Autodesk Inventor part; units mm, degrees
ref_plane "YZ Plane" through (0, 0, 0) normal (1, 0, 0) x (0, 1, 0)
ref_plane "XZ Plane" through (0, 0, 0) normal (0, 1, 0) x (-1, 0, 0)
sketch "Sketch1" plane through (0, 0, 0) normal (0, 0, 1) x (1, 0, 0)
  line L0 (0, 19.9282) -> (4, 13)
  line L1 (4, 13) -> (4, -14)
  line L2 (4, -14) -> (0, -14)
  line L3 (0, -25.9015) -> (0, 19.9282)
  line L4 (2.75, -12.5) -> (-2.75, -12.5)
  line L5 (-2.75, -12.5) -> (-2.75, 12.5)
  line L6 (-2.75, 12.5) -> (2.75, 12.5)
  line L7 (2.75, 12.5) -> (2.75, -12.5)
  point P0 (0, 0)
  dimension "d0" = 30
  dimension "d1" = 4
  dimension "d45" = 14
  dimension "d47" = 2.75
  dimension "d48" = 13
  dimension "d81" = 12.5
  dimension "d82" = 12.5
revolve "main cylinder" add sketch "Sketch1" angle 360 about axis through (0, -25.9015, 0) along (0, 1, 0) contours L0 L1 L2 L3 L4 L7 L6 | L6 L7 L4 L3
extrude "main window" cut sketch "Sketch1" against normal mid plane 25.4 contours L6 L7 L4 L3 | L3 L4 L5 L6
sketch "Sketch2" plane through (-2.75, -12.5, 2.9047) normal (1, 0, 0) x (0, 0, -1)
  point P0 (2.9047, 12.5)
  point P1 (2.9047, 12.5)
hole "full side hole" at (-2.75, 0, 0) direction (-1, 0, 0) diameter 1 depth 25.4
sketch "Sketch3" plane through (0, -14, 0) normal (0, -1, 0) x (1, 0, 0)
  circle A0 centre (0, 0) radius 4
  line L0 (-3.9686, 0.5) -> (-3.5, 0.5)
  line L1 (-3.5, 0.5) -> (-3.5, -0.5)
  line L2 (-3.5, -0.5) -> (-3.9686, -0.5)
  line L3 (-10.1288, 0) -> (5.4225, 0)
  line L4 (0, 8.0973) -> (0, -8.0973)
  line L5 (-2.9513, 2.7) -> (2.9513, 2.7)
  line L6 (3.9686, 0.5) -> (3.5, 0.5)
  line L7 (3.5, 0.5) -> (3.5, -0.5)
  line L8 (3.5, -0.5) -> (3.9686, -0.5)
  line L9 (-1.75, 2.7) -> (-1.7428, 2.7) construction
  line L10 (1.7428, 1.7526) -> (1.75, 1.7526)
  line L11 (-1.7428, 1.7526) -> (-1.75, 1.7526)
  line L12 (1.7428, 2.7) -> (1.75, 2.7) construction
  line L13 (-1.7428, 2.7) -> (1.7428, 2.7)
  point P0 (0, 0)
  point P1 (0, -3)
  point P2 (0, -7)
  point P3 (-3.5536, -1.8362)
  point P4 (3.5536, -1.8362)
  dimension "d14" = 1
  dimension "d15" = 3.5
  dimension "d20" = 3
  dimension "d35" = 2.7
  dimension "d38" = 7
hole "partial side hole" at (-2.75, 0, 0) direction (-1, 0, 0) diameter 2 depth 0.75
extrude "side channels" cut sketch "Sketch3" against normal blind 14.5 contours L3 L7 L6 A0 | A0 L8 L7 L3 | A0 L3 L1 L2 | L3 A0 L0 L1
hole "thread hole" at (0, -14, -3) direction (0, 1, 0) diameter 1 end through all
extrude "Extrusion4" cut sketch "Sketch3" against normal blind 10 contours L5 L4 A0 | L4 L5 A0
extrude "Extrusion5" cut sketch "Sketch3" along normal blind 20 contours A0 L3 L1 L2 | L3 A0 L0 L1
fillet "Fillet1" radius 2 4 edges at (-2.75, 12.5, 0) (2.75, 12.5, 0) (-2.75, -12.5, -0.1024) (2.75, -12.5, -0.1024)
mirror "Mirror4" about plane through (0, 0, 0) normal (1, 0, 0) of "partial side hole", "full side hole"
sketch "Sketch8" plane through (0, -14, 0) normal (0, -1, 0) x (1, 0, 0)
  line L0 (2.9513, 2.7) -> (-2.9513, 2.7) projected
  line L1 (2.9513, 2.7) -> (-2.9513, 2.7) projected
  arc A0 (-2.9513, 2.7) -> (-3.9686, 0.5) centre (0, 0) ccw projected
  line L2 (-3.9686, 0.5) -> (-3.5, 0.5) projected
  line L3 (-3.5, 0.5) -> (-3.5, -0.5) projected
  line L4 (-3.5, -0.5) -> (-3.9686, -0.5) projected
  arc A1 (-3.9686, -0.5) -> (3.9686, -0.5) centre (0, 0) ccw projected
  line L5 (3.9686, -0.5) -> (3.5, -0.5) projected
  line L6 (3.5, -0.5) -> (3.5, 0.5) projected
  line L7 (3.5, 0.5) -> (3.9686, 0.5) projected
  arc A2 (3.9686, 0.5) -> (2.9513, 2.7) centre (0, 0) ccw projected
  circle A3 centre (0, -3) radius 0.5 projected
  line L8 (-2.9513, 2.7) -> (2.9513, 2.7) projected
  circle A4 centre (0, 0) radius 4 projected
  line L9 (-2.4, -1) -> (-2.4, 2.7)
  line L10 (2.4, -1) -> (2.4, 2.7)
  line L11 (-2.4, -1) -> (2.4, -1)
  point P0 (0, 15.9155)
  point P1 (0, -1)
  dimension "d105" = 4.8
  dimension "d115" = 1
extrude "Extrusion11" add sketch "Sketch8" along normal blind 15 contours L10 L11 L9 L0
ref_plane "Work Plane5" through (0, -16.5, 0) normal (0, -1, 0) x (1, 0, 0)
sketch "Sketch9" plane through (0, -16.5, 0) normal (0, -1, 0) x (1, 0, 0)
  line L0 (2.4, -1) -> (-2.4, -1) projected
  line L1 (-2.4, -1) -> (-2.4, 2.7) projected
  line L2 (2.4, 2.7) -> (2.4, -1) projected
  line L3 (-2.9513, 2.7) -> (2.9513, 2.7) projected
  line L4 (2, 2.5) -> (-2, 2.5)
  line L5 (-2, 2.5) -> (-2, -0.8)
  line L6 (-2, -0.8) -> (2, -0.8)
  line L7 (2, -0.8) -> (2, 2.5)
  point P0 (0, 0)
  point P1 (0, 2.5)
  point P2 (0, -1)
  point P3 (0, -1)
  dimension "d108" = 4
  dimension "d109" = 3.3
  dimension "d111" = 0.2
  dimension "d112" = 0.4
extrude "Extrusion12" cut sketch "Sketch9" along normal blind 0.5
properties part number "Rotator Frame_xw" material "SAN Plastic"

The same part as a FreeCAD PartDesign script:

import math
import FreeCAD as App
import Part
import Sketcher
from FreeCAD import Vector
Q = App.Units.Quantity


def edges_at(feature, points):
    """Names of the edges that pass closest to the given points."""
    edges = feature.Shape.Edges
    near = lambda p: min(range(len(edges)), key=lambda i: edges[i].distToShape(Part.Vertex(*p))[0])
    return sorted({f"Edge{near(p) + 1}" for p in points})

doc = App.newDocument("Part")
body = doc.addObject("PartDesign::Body", "Body")

sketch1 = body.newObject("Sketcher::SketchObject", "Sketch")
sketch1.AttachmentSupport = (doc.getObject("XY_Plane"), [""])
sketch1.MapMode = "FlatFace"
sketch1.addGeometry([
    Part.LineSegment(Vector(4, 13, 0), Vector(0, 19.9282, 0)),
    Part.LineSegment(Vector(0, 19.9282, 0), Vector(0, -14, 0)),
    Part.LineSegment(Vector(0, -14, 0), Vector(4, -14, 0)),
    Part.LineSegment(Vector(4, -14, 0), Vector(4, 13, 0)),
], False)
sketch1.addConstraint([
    Sketcher.Constraint("Coincident", 0, 2, 1, 1),
    Sketcher.Constraint("Coincident", 1, 2, 2, 1),
    Sketcher.Constraint("Coincident", 2, 2, 3, 1),
    Sketcher.Constraint("Coincident", 3, 2, 0, 1),
    Sketcher.Constraint("Vertical", 1),
    Sketcher.Constraint("Horizontal", 2),
    Sketcher.Constraint("Vertical", 3),
    Sketcher.Constraint("PointOnObject", 0, 2, -2),
    Sketcher.Constraint("DistanceX", 2, 1, 2, 2, Q("4 mm")),
    Sketcher.Constraint("DistanceY", 1, 2, -1, 1, Q("14 mm")),
    Sketcher.Constraint("DistanceY", -1, 1, 3, 2, Q("13 mm")),
    Sketcher.Constraint("Angle", 0, Q("120 deg")),
])
revolution = body.newObject("PartDesign::Revolution", "Revolution")
revolution.Profile = sketch1
revolution.ReferenceAxis = (sketch1, ["V_Axis"])
revolution.Angle = 360

sketch2 = body.newObject("Sketcher::SketchObject", "Sketch001")
sketch2.AttachmentSupport = (doc.getObject("XY_Plane"), [""])
sketch2.MapMode = "FlatFace"
sketch2.addGeometry([
    Part.LineSegment(Vector(2.75, 12.5, 0), Vector(-2.75, 12.5, 0)),
    Part.LineSegment(Vector(-2.75, 12.5, 0), Vector(-2.75, -12.5, 0)),
    Part.LineSegment(Vector(-2.75, -12.5, 0), Vector(2.75, -12.5, 0)),
    Part.LineSegment(Vector(2.75, -12.5, 0), Vector(2.75, 12.5, 0)),
], False)
sketch2.addConstraint([
    Sketcher.Constraint("Coincident", 0, 2, 1, 1),
    Sketcher.Constraint("Coincident", 1, 2, 2, 1),
    Sketcher.Constraint("Coincident", 2, 2, 3, 1),
    Sketcher.Constraint("Coincident", 3, 2, 0, 1),
    Sketcher.Constraint("Horizontal", 0),
    Sketcher.Constraint("Vertical", 1),
    Sketcher.Constraint("Horizontal", 2),
    Sketcher.Constraint("Vertical", 3),
    Sketcher.Constraint("Symmetric", 0, 2, 2, 2, -1, 1),
    Sketcher.Constraint("DistanceY", -1, 1, 0, 2, Q("12.5 mm")),
    Sketcher.Constraint("DistanceX", 0, 2, -1, 1, Q("2.75 mm")),
])
pocket1 = body.newObject("PartDesign::Pocket", "Pocket")
pocket1.Profile = sketch2
pocket1.Length = 25.4
pocket1.Midplane = True

sketch3 = body.newObject("Sketcher::SketchObject", "Sketch002")
sketch3.AttachmentSupport = (doc.getObject("YZ_Plane"), [""])
sketch3.MapMode = "FlatFace"
sketch3.AttachmentOffset = App.Placement(Vector(0, 0, -2.75), App.Rotation())
sketch3.addGeometry(Part.Circle(Vector(0, 0, 0), Vector(0, 0, 1), 0.5), False)
sketch3.addConstraint([
    Sketcher.Constraint("Coincident", 0, 3, -1, 1),
    Sketcher.Constraint("Diameter", 0, Q("1 mm")),
])
doc.recompute()
hole = body.newObject("PartDesign::Hole", "Hole")
hole.Profile = sketch3
hole.ThreadType = "None"
hole.Diameter = 1
hole.DepthType = "Dimension"
hole.Depth = 25.4
hole.DrillPoint = "Flat"

sketch4 = body.newObject("Sketcher::SketchObject", "Sketch003")
sketch4.AttachmentSupport = (doc.getObject("YZ_Plane"), [""])
sketch4.MapMode = "FlatFace"
sketch4.AttachmentOffset = App.Placement(Vector(0, 0, -2.75), App.Rotation())
sketch4.addGeometry(Part.Circle(Vector(0, 0, 0), Vector(0, 0, 1), 1), False)
sketch4.addConstraint([
    Sketcher.Constraint("Coincident", 0, 3, -1, 1),
    Sketcher.Constraint("Diameter", 0, Q("2 mm")),
])
doc.recompute()
hole2 = body.newObject("PartDesign::Hole", "Hole001")
hole2.Profile = sketch4
hole2.ThreadType = "None"
hole2.Diameter = 2
hole2.DepthType = "Dimension"
hole2.Depth = 0.75
hole2.DrillPoint = "Flat"

sketch5 = body.newObject("Sketcher::SketchObject", "Sketch004")
sketch5.AttachmentSupport = (doc.getObject("XZ_Plane"), [""])
sketch5.MapMode = "FlatFace"
sketch5.AttachmentOffset = App.Placement(Vector(0, 0, 14), App.Rotation())
sketch5.addGeometry([
    Part.LineSegment(Vector(3.5, 0.5, 0), Vector(3.5, -0.5, 0)),
    Part.LineSegment(Vector(3.5, -0.5, 0), Vector(3.9686, -0.5, 0)),
    Part.ArcOfCircle(Part.Circle(Vector(0, 0, 0), Vector(0, 0, 1), 4), math.radians(-7.180804), math.radians(7.180804)),
    Part.LineSegment(Vector(3.9686, 0.5, 0), Vector(3.5, 0.5, 0)),
    Part.LineSegment(Vector(-3.9686, -0.5, 0), Vector(-3.5, -0.5, 0)),
    Part.LineSegment(Vector(-3.5, -0.5, 0), Vector(-3.5, 0.5, 0)),
    Part.LineSegment(Vector(-3.5, 0.5, 0), Vector(-3.9686, 0.5, 0)),
    Part.ArcOfCircle(Part.Circle(Vector(0, 0, 0), Vector(0, 0, 1), 4), math.radians(172.819196), math.radians(187.180804)),
], False)
sketch5.addConstraint([
    Sketcher.Constraint("Coincident", 0, 2, 1, 1),
    Sketcher.Constraint("Coincident", 1, 2, 2, 1),
    Sketcher.Constraint("Coincident", 2, 2, 3, 1),
    Sketcher.Constraint("Coincident", 3, 2, 0, 1),
    Sketcher.Constraint("Coincident", 4, 2, 5, 1),
    Sketcher.Constraint("Coincident", 5, 2, 6, 1),
    Sketcher.Constraint("Coincident", 6, 2, 7, 1),
    Sketcher.Constraint("Coincident", 7, 2, 4, 1),
    Sketcher.Constraint("Vertical", 0),
    Sketcher.Constraint("Horizontal", 1),
    Sketcher.Constraint("Horizontal", 3),
    Sketcher.Constraint("Horizontal", 4),
    Sketcher.Constraint("Vertical", 5),
    Sketcher.Constraint("Horizontal", 6),
    Sketcher.Constraint("Coincident", 2, 3, -1, 1),
    Sketcher.Constraint("Coincident", 7, 3, -1, 1),
    Sketcher.Constraint("Equal", 2, 7),
    Sketcher.Constraint("Symmetric", 3, 2, 4, 2, -1, 1),
    Sketcher.Constraint("Horizontal", 1, 2, 4, 2),
    Sketcher.Constraint("Horizontal", 3, 2, 5, 2),
    Sketcher.Constraint("DistanceY", 0, 2, 0, 1, Q("1 mm")),
    Sketcher.Constraint("Radius", 2, Q("4 mm")),
    Sketcher.Constraint("DistanceX", 4, 2, 0, 2, Q("7 mm")),
])
pocket2 = body.newObject("PartDesign::Pocket", "Pocket001")
pocket2.Profile = sketch5
pocket2.Length = 14.5

sketch6 = body.newObject("Sketcher::SketchObject", "Sketch005")
sketch6.AttachmentSupport = (doc.getObject("XZ_Plane"), [""])
sketch6.MapMode = "FlatFace"
sketch6.AttachmentOffset = App.Placement(Vector(0, 0, 14), App.Rotation())
sketch6.addGeometry(Part.Circle(Vector(0, -3, 0), Vector(0, 0, 1), 0.5), False)
sketch6.addConstraint([
    Sketcher.Constraint("PointOnObject", 0, 3, -2),
    Sketcher.Constraint("Diameter", 0, Q("1 mm")),
    Sketcher.Constraint("DistanceY", 0, 3, -1, 1, Q("3 mm")),
])
doc.recompute()
hole3 = body.newObject("PartDesign::Hole", "Hole002")
hole3.Profile = sketch6
hole3.ThreadType = "None"
hole3.Diameter = 1
hole3.DepthType = "ThroughAll"

sketch7 = body.newObject("Sketcher::SketchObject", "Sketch006")
sketch7.AttachmentSupport = (doc.getObject("XZ_Plane"), [""])
sketch7.MapMode = "FlatFace"
sketch7.AttachmentOffset = App.Placement(Vector(0, 0, 14), App.Rotation())
sketch7.addGeometry([
    Part.ArcOfCircle(Part.Circle(Vector(0, 0, 0), Vector(0, 0, 1), 4), math.radians(42.453869), math.radians(137.546131)),
    Part.LineSegment(Vector(2.9513, 2.7, 0), Vector(-2.9513, 2.7, 0)),
], False)
sketch7.addConstraint([
    Sketcher.Constraint("Coincident", 0, 1, 1, 1),
    Sketcher.Constraint("Coincident", 1, 2, 0, 2),
    Sketcher.Constraint("Horizontal", 1),
    Sketcher.Constraint("Coincident", 0, 3, -1, 1),
    Sketcher.Constraint("Radius", 0, Q("4 mm")),
    Sketcher.Constraint("DistanceY", -1, 1, 0, 1, Q("2.7 mm")),
])
pocket3 = body.newObject("PartDesign::Pocket", "Pocket002")
pocket3.Profile = sketch7
pocket3.Length = 10

sketch8 = body.newObject("Sketcher::SketchObject", "Sketch007")
sketch8.AttachmentSupport = (doc.getObject("XZ_Plane"), [""])
sketch8.MapMode = "FlatFace"
sketch8.AttachmentOffset = App.Placement(Vector(0, 0, 14), App.Rotation())
sketch8.addGeometry([
    Part.LineSegment(Vector(-3.9686, -0.5, 0), Vector(-3.5, -0.5, 0)),
    Part.LineSegment(Vector(-3.5, -0.5, 0), Vector(-3.5, 0.5, 0)),
    Part.LineSegment(Vector(-3.5, 0.5, 0), Vector(-3.9686, 0.5, 0)),
    Part.ArcOfCircle(Part.Circle(Vector(0, 0, 0), Vector(0, 0, 1), 4), math.radians(172.819196), math.radians(187.180804)),
], False)
sketch8.addConstraint([
    Sketcher.Constraint("Coincident", 0, 2, 1, 1),
    Sketcher.Constraint("Coincident", 1, 2, 2, 1),
    Sketcher.Constraint("Coincident", 2, 2, 3, 1),
    Sketcher.Constraint("Coincident", 3, 2, 0, 1),
    Sketcher.Constraint("Horizontal", 0),
    Sketcher.Constraint("Vertical", 1),
    Sketcher.Constraint("Horizontal", 2),
    Sketcher.Constraint("Coincident", 3, 3, -1, 1),
    Sketcher.Constraint("Vertical", 2, 2, 3, 2),
    Sketcher.Constraint("DistanceY", 1, 1, 1, 2, Q("1 mm")),
    Sketcher.Constraint("Radius", 3, Q("4 mm")),
    Sketcher.Constraint("DistanceX", 0, 2, -1, 1, Q("3.5 mm")),
])
pocket4 = body.newObject("PartDesign::Pocket", "Pocket003")
pocket4.Profile = sketch8
pocket4.Length = 20
pocket4.Reversed = True
doc.recompute()

fillet = body.newObject("PartDesign::Fillet", "Fillet")
fillet.Base = (pocket4, edges_at(pocket4, [
    (-2.75, 12.5, 0),
    (2.75, 12.5, 0),
    (-2.75, -12.5, -0.102),
    (2.75, -12.5, -0.102),
]))
fillet.Radius = 2
doc.recompute()

mirrored = body.newObject("PartDesign::Mirrored", "Mirrored")
mirrored.Originals = [hole2, hole]
mirrored.MirrorPlane = (doc.getObject("YZ_Plane"), [""])
body.Tip = mirrored

sketch9 = body.newObject("Sketcher::SketchObject", "Sketch008")
sketch9.AttachmentSupport = (doc.getObject("XZ_Plane"), [""])
sketch9.MapMode = "FlatFace"
sketch9.AttachmentOffset = App.Placement(Vector(0, 0, 14), App.Rotation())
sketch9.addGeometry([
    Part.LineSegment(Vector(2.4, -1, 0), Vector(2.4, 2.7, 0)),
    Part.LineSegment(Vector(2.4, 2.7, 0), Vector(-2.4, 2.7, 0)),
    Part.LineSegment(Vector(-2.4, 2.7, 0), Vector(-2.4, -1, 0)),
    Part.LineSegment(Vector(-2.4, -1, 0), Vector(2.4, -1, 0)),
], False)
sketch9.addConstraint([
    Sketcher.Constraint("Coincident", 0, 2, 1, 1),
    Sketcher.Constraint("Coincident", 1, 2, 2, 1),
    Sketcher.Constraint("Coincident", 2, 2, 3, 1),
    Sketcher.Constraint("Coincident", 3, 2, 0, 1),
    Sketcher.Constraint("Vertical", 0),
    Sketcher.Constraint("Horizontal", 1),
    Sketcher.Constraint("Vertical", 2),
    Sketcher.Constraint("Horizontal", 3),
    Sketcher.Constraint("DistanceX", 1, 2, 1, 1, Q("4.8 mm")),
    Sketcher.Constraint("DistanceY", 2, 2, -1, 1, Q("1 mm")),
    Sketcher.Constraint("DistanceY", 0, 1, 0, 2, Q("3.7 mm")),
    Sketcher.Constraint("DistanceX", -1, 1, 0, 2, Q("2.4 mm")),
])
pad1 = body.newObject("PartDesign::Pad", "Pad")
pad1.Profile = sketch9
pad1.Length = 15

sketch10 = body.newObject("Sketcher::SketchObject", "Sketch009")
sketch10.AttachmentSupport = (doc.getObject("XZ_Plane"), [""])
sketch10.MapMode = "FlatFace"
sketch10.AttachmentOffset = App.Placement(Vector(0, 0, 16.5), App.Rotation())
sketch10.addGeometry([
    Part.LineSegment(Vector(-2.4, -1, 0), Vector(2.4, -1, 0)),
    Part.LineSegment(Vector(2.4, -1, 0), Vector(2.4, 2.7, 0)),
    Part.LineSegment(Vector(2.4, 2.7, 0), Vector(-2.4, 2.7, 0)),
    Part.LineSegment(Vector(-2.4, 2.7, 0), Vector(-2.4, -1, 0)),
    Part.LineSegment(Vector(-2, 2.5, 0), Vector(2, 2.5, 0)),
    Part.LineSegment(Vector(2, 2.5, 0), Vector(2, -0.8, 0)),
    Part.LineSegment(Vector(2, -0.8, 0), Vector(-2, -0.8, 0)),
    Part.LineSegment(Vector(-2, -0.8, 0), Vector(-2, 2.5, 0)),
], False)
sketch10.addConstraint([
    Sketcher.Constraint("Coincident", 0, 2, 1, 1),
    Sketcher.Constraint("Coincident", 1, 2, 2, 1),
    Sketcher.Constraint("Coincident", 2, 2, 3, 1),
    Sketcher.Constraint("Coincident", 3, 2, 0, 1),
    Sketcher.Constraint("Coincident", 4, 2, 5, 1),
    Sketcher.Constraint("Coincident", 5, 2, 6, 1),
    Sketcher.Constraint("Coincident", 6, 2, 7, 1),
    Sketcher.Constraint("Coincident", 7, 2, 4, 1),
    Sketcher.Constraint("Horizontal", 0),
    Sketcher.Constraint("Vertical", 1),
    Sketcher.Constraint("Horizontal", 2),
    Sketcher.Constraint("Vertical", 3),
    Sketcher.Constraint("Horizontal", 4),
    Sketcher.Constraint("Vertical", 5),
    Sketcher.Constraint("Horizontal", 6),
    Sketcher.Constraint("Vertical", 7),
    Sketcher.Constraint("DistanceX", 4, 1, 4, 2, Q("4 mm")),
    Sketcher.Constraint("DistanceY", 5, 2, 5, 1, Q("3.3 mm")),
    Sketcher.Constraint("DistanceX", 4, 2, 1, 2, Q("0.4 mm")),
    Sketcher.Constraint("DistanceY", 4, 2, 1, 2, Q("0.2 mm")),
    Sketcher.Constraint("DistanceY", 0, 2, 5, 2, Q("0.2 mm")),
    Sketcher.Constraint("DistanceX", 3, 2, 6, 2, Q("0.4 mm")),
    Sketcher.Constraint("DistanceY", 0, 2, -1, 1, Q("1 mm")),
    Sketcher.Constraint("DistanceX", -1, 1, 4, 2, Q("2 mm")),
])
pocket5 = body.newObject("PartDesign::Pocket", "Pocket004")
pocket5.Profile = sketch10
pocket5.Length = 0.5
pocket5.Reversed = True

doc.recompute()
